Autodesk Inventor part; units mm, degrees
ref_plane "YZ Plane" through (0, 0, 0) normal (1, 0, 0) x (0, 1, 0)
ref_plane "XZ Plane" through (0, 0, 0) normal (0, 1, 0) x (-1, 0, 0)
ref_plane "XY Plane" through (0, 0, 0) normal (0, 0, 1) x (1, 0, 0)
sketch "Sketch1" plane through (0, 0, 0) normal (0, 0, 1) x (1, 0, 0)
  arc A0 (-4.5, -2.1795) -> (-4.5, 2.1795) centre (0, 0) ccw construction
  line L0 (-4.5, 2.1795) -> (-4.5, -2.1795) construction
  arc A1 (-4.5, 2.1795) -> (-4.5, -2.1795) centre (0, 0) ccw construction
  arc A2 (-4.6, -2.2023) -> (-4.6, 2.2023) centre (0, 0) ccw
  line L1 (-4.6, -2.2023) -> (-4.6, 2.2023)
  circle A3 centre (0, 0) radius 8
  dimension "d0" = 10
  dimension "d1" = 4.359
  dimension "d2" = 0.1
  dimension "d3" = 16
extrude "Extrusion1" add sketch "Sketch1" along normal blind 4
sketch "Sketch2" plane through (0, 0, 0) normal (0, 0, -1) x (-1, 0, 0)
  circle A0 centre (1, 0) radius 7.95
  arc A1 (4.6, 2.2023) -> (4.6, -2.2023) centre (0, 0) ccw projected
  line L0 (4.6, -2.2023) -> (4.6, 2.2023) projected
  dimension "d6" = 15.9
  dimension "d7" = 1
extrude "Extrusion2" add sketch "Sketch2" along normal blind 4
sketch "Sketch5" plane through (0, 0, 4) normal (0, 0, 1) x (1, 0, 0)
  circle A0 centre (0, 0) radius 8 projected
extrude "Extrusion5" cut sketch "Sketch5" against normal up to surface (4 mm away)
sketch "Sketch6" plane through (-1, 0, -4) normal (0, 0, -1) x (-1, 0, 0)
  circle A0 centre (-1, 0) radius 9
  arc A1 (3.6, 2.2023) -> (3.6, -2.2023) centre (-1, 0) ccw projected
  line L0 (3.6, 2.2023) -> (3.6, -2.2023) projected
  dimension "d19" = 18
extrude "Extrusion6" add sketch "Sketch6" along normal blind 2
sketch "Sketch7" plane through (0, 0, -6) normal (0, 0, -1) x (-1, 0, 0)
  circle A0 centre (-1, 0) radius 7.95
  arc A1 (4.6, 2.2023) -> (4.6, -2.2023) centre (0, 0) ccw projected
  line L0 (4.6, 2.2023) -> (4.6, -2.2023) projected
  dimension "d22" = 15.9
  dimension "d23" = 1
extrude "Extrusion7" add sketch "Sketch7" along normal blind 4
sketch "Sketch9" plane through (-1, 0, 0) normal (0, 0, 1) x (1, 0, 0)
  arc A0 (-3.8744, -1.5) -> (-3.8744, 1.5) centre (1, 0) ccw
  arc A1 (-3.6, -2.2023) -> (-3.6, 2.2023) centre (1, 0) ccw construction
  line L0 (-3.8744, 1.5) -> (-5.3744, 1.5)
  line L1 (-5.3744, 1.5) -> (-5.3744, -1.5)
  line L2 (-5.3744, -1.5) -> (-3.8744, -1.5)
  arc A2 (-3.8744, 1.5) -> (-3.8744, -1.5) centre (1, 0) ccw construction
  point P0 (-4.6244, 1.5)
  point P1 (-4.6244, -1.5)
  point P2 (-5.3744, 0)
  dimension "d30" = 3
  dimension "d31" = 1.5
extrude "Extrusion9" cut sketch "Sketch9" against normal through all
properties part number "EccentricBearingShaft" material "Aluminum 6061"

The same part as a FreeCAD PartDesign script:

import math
import FreeCAD as App
import Part
import Sketcher

V = App.Vector
Q = App.Units.Quantity

doc = App.newDocument("Part")
params = doc.addObject("Spreadsheet::Sheet", "Params")
for row, (alias, value) in enumerate([
    ("sketch1_diameter", "16 mm"),
    ("sketch1_radius", "5.1 mm"),
    ("pad1_length", "4 mm"),
    ("sketch2_diameter", "15.9 mm"),
    ("sketch2_radius", "5.1 mm"),
    ("pad2_length", "4 mm"),
    ("sketch3_diameter", "16 mm"),
    ("pocket1_length", "4 mm"),
    ("sketch4_diameter", "18 mm"),
    ("sketch4_radius", "5.1 mm"),
    ("pad3_length", "2 mm"),
    ("sketch5_diameter", "15.9 mm"),
    ("sketch5_radius", "5.1 mm"),
    ("pad4_length", "4 mm"),
    ("sketch6_height", "3 mm"),
    ("sketch6_width", "1.5 mm"),
    ("sketch6_radius", "5.1 mm"),
], start=1):
    params.set(f"A{row}", alias)
    params.set(f"B{row}", "=" + value)
    params.setAlias(f"B{row}", alias)

body = doc.addObject("PartDesign::Body", "Body")

sketch1 = body.newObject("Sketcher::SketchObject", "Sketch")
sketch1.AttachmentSupport = (doc.getObject("XY_Plane"), [""])
sketch1.MapMode = "FlatFace"
sketch1.addGeometry([
    Part.Circle(V(0, 0, 0), V(0, 0, 1), 8),
    Part.ArcOfCircle(Part.Circle(V(0, 0, 0), V(0, 0, 1), 5.100012), math.radians(-154.416724), math.radians(154.416724)),
    Part.LineSegment(V(-4.6, -2.2023, 0), V(-4.6, 2.2023, 0)),
], False)
sketch1.addConstraint([
    Sketcher.Constraint("Coincident", 1, 1, 2, 1),
    Sketcher.Constraint("Coincident", 2, 2, 1, 2),
    Sketcher.Constraint("Vertical", 2),
    Sketcher.Constraint("Coincident", 0, 3, -1, 1),
    Sketcher.Constraint("Coincident", 1, 3, -1, 1),
    Sketcher.Constraint("Diameter", 0, Q("16 mm")),
    Sketcher.Constraint("Radius", 1, Q("5.1 mm")),
    Sketcher.Constraint("DistanceX", 1, 1, -1, 1, Q("4.6 mm")),
])
sketch1.setExpression("Constraints[5]", "Params.sketch1_diameter")
sketch1.setExpression("Constraints[6]", "Params.sketch1_radius")
pad1 = body.newObject("PartDesign::Pad", "Pad")
pad1.Profile = sketch1
pad1.setExpression("Length", "Params.pad1_length")

sketch2 = body.newObject("Sketcher::SketchObject", "Sketch001")
sketch2.AttachmentSupport = (doc.getObject("XY_Plane"), [""])
sketch2.MapMode = "FlatFace"
sketch2.addGeometry([
    Part.Circle(V(-1, 0, 0), V(0, 0, 1), 7.95),
    Part.ArcOfCircle(Part.Circle(V(0, 0, 0), V(0, 0, 1), 5.100012), math.radians(-154.416724), math.radians(154.416724)),
    Part.LineSegment(V(-4.6, 2.2023, 0), V(-4.6, -2.2023, 0)),
], False)
sketch2.addConstraint([
    Sketcher.Constraint("Coincident", 1, 1, 2, 2),
    Sketcher.Constraint("Coincident", 2, 1, 1, 2),
    Sketcher.Constraint("Vertical", 2),
    Sketcher.Constraint("Coincident", 1, 3, -1, 1),
    Sketcher.Constraint("PointOnObject", 0, 3, -1),
    Sketcher.Constraint("Diameter", 0, Q("15.9 mm")),
    Sketcher.Constraint("DistanceX", 0, 3, -1, 1, Q("1 mm")),
    Sketcher.Constraint("Radius", 1, Q("5.1 mm")),
    Sketcher.Constraint("DistanceX", 1, 1, -1, 1, Q("4.6 mm")),
])
sketch2.setExpression("Constraints[5]", "Params.sketch2_diameter")
sketch2.setExpression("Constraints[7]", "Params.sketch2_radius")
pad2 = body.newObject("PartDesign::Pad", "Pad001")
pad2.Profile = sketch2
pad2.setExpression("Length", "Params.pad2_length")
pad2.Reversed = True

sketch3 = body.newObject("Sketcher::SketchObject", "Sketch002")
sketch3.AttachmentSupport = (doc.getObject("XY_Plane"), [""])
sketch3.MapMode = "FlatFace"
sketch3.AttachmentOffset = App.Placement(V(0, 0, 4), App.Rotation())
sketch3.addGeometry(Part.Circle(V(0, 0, 0), V(0, 0, 1), 8), False)
sketch3.addConstraint([
    Sketcher.Constraint("Coincident", 0, 3, -1, 1),
    Sketcher.Constraint("Diameter", 0, Q("16 mm")),
])
sketch3.setExpression("Constraints[1]", "Params.sketch3_diameter")
pocket1 = body.newObject("PartDesign::Pocket", "Pocket")
pocket1.Profile = sketch3
pocket1.setExpression("Length", "Params.pocket1_length")

sketch4 = body.newObject("Sketcher::SketchObject", "Sketch003")
sketch4.AttachmentSupport = (doc.getObject("XY_Plane"), [""])
sketch4.MapMode = "FlatFace"
sketch4.AttachmentOffset = App.Placement(V(0, 0, -4), App.Rotation())
sketch4.addGeometry([
    Part.Circle(V(0, 0, 0), V(0, 0, 1), 9),
    Part.ArcOfCircle(Part.Circle(V(0, 0, 0), V(0, 0, 1), 5.100012), math.radians(-154.416724), math.radians(154.416724)),
    Part.LineSegment(V(-4.6, 2.2023, 0), V(-4.6, -2.2023, 0)),
], False)
sketch4.addConstraint([
    Sketcher.Constraint("Coincident", 1, 1, 2, 2),
    Sketcher.Constraint("Coincident", 2, 1, 1, 2),
    Sketcher.Constraint("Vertical", 2),
    Sketcher.Constraint("Coincident", 0, 3, -1, 1),
    Sketcher.Constraint("Coincident", 1, 3, -1, 1),
    Sketcher.Constraint("Diameter", 0, Q("18 mm")),
    Sketcher.Constraint("Radius", 1, Q("5.1 mm")),
    Sketcher.Constraint("DistanceX", 1, 1, -1, 1, Q("4.6 mm")),
])
sketch4.setExpression("Constraints[5]", "Params.sketch4_diameter")
sketch4.setExpression("Constraints[6]", "Params.sketch4_radius")
pad3 = body.newObject("PartDesign::Pad", "Pad002")
pad3.Profile = sketch4
pad3.setExpression("Length", "Params.pad3_length")
pad3.Reversed = True

sketch5 = body.newObject("Sketcher::SketchObject", "Sketch004")
sketch5.AttachmentSupport = (doc.getObject("XY_Plane"), [""])
sketch5.MapMode = "FlatFace"
sketch5.AttachmentOffset = App.Placement(V(0, 0, -6), App.Rotation())
sketch5.addGeometry([
    Part.Circle(V(1, 0, 0), V(0, 0, 1), 7.95),
    Part.ArcOfCircle(Part.Circle(V(0, 0, 0), V(0, 0, 1), 5.100012), math.radians(-154.416724), math.radians(154.416724)),
    Part.LineSegment(V(-4.6, 2.2023, 0), V(-4.6, -2.2023, 0)),
], False)
sketch5.addConstraint([
    Sketcher.Constraint("Coincident", 1, 1, 2, 2),
    Sketcher.Constraint("Coincident", 2, 1, 1, 2),
    Sketcher.Constraint("Vertical", 2),
    Sketcher.Constraint("Coincident", 1, 3, -1, 1),
    Sketcher.Constraint("PointOnObject", 0, 3, -1),
    Sketcher.Constraint("Diameter", 0, Q("15.9 mm")),
    Sketcher.Constraint("DistanceX", -1, 1, 0, 3, Q("1 mm")),
    Sketcher.Constraint("Radius", 1, Q("5.1 mm")),
    Sketcher.Constraint("DistanceX", 1, 1, -1, 1, Q("4.6 mm")),
])
sketch5.setExpression("Constraints[5]", "Params.sketch5_diameter")
sketch5.setExpression("Constraints[7]", "Params.sketch5_radius")
pad4 = body.newObject("PartDesign::Pad", "Pad003")
pad4.Profile = sketch5
pad4.setExpression("Length", "Params.pad4_length")
pad4.Reversed = True

sketch6 = body.newObject("Sketcher::SketchObject", "Sketch005")
sketch6.AttachmentSupport = (doc.getObject("XY_Plane"), [""])
sketch6.MapMode = "FlatFace"
sketch6.addGeometry([
    Part.LineSegment(V(-6.3744, -1.5, 0), V(-4.8744, -1.5, 0)),
    Part.ArcOfCircle(Part.Circle(V(0, 0, 0), V(0, 0, 1), 5.099978), math.radians(-162.895289), math.radians(162.895289)),
    Part.LineSegment(V(-4.8744, 1.5, 0), V(-6.3744, 1.5, 0)),
    Part.LineSegment(V(-6.3744, 1.5, 0), V(-6.3744, -1.5, 0)),
], False)
sketch6.addConstraint([
    Sketcher.Constraint("Coincident", 0, 2, 1, 1),
    Sketcher.Constraint("Coincident", 1, 2, 2, 1),
    Sketcher.Constraint("Coincident", 2, 2, 3, 1),
    Sketcher.Constraint("Coincident", 3, 2, 0, 1),
    Sketcher.Constraint("Horizontal", 0),
    Sketcher.Constraint("Horizontal", 2),
    Sketcher.Constraint("Vertical", 3),
    Sketcher.Constraint("Coincident", 1, 3, -1, 1),
    Sketcher.Constraint("Vertical", 0, 2, 1, 2),
    Sketcher.Constraint("DistanceY", 3, 2, 3, 1, Q("3 mm")),
    Sketcher.Constraint("DistanceX", 0, 1, 0, 2, Q("1.5 mm")),
    Sketcher.Constraint("Radius", 1, Q("5.1 mm")),
])
sketch6.setExpression("Constraints[9]", "Params.sketch6_height")
sketch6.setExpression("Constraints[10]", "Params.sketch6_width")
sketch6.setExpression("Constraints[11]", "Params.sketch6_radius")
pocket2 = body.newObject("PartDesign::Pocket", "Pocket001")
pocket2.Profile = sketch6
pocket2.Type = "ThroughAll"

doc.recompute()
